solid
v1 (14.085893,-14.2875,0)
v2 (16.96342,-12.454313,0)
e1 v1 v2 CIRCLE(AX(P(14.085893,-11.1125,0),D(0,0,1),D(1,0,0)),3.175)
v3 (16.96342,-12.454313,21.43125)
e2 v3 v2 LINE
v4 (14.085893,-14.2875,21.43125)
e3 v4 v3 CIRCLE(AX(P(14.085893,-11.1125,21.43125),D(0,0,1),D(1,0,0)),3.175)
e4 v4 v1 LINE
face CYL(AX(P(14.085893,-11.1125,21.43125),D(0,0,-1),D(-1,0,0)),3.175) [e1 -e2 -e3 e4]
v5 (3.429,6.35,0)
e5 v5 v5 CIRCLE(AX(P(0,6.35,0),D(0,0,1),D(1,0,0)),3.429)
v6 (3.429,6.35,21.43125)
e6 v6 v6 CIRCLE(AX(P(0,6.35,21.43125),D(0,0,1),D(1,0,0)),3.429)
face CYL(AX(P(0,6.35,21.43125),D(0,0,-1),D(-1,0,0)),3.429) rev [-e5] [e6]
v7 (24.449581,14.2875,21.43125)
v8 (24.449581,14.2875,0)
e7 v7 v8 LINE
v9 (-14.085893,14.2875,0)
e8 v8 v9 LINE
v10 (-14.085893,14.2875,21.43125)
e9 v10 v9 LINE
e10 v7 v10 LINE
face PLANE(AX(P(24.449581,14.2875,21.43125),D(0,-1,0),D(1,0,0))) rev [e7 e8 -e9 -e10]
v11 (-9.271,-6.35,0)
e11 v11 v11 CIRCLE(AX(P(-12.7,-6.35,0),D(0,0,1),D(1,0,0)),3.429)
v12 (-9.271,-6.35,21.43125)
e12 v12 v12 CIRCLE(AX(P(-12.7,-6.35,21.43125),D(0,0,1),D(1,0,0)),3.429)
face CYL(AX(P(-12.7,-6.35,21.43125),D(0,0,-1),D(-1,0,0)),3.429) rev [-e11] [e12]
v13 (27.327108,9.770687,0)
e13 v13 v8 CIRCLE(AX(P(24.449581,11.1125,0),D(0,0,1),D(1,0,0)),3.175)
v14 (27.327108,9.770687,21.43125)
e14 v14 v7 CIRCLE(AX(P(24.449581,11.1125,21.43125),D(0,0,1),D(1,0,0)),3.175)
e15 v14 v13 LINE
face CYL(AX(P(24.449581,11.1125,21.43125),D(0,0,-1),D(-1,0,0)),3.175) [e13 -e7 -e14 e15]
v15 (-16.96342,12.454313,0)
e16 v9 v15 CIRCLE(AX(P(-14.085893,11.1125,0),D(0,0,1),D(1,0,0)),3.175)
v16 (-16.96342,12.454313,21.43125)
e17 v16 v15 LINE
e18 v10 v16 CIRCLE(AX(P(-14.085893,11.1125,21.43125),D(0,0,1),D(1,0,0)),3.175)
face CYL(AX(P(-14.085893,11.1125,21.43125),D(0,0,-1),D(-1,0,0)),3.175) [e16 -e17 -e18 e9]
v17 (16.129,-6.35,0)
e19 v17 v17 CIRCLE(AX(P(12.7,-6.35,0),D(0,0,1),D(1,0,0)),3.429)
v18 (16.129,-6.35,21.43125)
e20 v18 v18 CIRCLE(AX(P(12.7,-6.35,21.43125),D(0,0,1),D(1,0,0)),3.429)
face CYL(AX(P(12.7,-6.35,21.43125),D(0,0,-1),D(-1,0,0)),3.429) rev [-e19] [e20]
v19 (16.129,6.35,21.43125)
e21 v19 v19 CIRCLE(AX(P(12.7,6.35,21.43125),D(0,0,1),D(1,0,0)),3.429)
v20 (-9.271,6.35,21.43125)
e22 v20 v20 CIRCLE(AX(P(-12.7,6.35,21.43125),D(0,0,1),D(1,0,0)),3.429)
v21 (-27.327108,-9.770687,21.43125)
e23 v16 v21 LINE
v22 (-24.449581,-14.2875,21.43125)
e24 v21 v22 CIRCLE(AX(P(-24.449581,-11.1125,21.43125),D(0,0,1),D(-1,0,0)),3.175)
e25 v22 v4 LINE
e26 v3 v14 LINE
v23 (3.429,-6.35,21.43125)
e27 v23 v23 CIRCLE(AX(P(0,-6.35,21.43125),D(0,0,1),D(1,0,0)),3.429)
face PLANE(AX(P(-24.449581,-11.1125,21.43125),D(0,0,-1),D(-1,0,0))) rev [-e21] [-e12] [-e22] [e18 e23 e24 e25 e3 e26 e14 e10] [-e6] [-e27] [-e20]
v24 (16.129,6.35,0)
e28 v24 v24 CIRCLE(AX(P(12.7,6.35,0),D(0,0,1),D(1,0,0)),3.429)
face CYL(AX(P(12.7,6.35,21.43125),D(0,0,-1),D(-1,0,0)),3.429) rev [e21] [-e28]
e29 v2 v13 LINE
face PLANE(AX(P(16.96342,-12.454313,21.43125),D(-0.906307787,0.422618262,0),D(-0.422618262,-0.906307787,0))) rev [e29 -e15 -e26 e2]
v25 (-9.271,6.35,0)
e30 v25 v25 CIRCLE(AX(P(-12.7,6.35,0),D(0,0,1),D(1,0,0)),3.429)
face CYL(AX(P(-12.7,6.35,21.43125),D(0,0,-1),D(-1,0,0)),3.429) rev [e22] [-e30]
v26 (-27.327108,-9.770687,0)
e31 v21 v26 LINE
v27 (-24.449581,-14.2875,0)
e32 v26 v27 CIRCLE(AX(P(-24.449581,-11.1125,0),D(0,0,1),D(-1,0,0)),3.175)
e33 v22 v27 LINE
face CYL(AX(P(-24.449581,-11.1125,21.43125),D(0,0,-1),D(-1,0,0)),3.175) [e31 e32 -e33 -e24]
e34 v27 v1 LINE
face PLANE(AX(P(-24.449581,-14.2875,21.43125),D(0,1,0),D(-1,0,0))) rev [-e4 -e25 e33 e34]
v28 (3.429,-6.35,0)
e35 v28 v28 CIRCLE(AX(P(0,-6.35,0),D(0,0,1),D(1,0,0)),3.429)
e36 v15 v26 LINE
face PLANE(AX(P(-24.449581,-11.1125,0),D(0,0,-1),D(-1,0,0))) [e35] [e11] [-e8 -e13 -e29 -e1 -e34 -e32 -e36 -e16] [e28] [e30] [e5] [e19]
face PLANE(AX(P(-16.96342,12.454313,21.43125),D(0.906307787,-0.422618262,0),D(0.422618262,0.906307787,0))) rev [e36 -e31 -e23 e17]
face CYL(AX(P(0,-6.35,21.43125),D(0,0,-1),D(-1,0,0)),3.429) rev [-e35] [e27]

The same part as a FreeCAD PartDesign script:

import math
import FreeCAD as App
import Part
import Sketcher
Q = App.Units.Quantity

doc = App.newDocument("Part")
body = doc.addObject("PartDesign::Body", "Body")

# Sketch on XY plane
sketch1 = doc.addObject("Sketcher::SketchObject", "Sketch")
body.addObject(sketch1)
sketch1.AttachmentSupport = (doc.XY_Plane, [""])
sketch1.MapMode = "FlatFace"
sketch1.addGeometry(Part.LineSegment(App.Vector(-24.4, -14.3, 0), App.Vector(14.1, -14.3, 0)), False)
sketch1.addGeometry(Part.ArcOfCircle(Part.Circle(App.Vector(14.1, -11.1, 0), App.Vector(0, 0, 1), 3.2), math.radians(-90), math.radians(-25)), False)
sketch1.addGeometry(Part.LineSegment(App.Vector(17, -12.5, 0), App.Vector(27.3, 9.8, 0)), False)
sketch1.addGeometry(Part.ArcOfCircle(Part.Circle(App.Vector(24.4, 11.1, 0), App.Vector(0, 0, 1), 3.2), math.radians(-25), math.radians(90)), False)
sketch1.addGeometry(Part.LineSegment(App.Vector(24.4, 14.3, 0), App.Vector(-14.1, 14.3, 0)), False)
sketch1.addGeometry(Part.ArcOfCircle(Part.Circle(App.Vector(-14.1, 11.1, 0), App.Vector(0, 0, 1), 3.2), math.radians(90), math.radians(155)), False)
sketch1.addGeometry(Part.LineSegment(App.Vector(-17, 12.5, 0), App.Vector(-27.3, -9.8, 0)), False)
sketch1.addGeometry(Part.ArcOfCircle(Part.Circle(App.Vector(-24.4, -11.1, 0), App.Vector(0, 0, 1), 3.2), math.radians(155), math.radians(270)), False)
sketch1.addGeometry(Part.Circle(App.Vector(-12.7, -6.3, 0), App.Vector(0, 0, 1), 3.4), False)
sketch1.addGeometry(Part.Circle(App.Vector(0, -6.3, 0), App.Vector(0, 0, 1), 3.4), False)
sketch1.addGeometry(Part.Circle(App.Vector(12.7, -6.3, 0), App.Vector(0, 0, 1), 3.4), False)
sketch1.addGeometry(Part.Circle(App.Vector(-12.7, 6.3, 0), App.Vector(0, 0, 1), 3.4), False)
sketch1.addGeometry(Part.Circle(App.Vector(0, 6.3, 0), App.Vector(0, 0, 1), 3.4), False)
sketch1.addGeometry(Part.Circle(App.Vector(12.7, 6.3, 0), App.Vector(0, 0, 1), 3.4), False)
sketch1.addConstraint(Sketcher.Constraint("Tangent", 0, 2, 1, 1))
sketch1.addConstraint(Sketcher.Constraint("Tangent", 1, 2, 2, 1))
sketch1.addConstraint(Sketcher.Constraint("Tangent", 2, 2, 3, 1))
sketch1.addConstraint(Sketcher.Constraint("Tangent", 3, 2, 4, 1))
sketch1.addConstraint(Sketcher.Constraint("Tangent", 4, 2, 5, 1))
sketch1.addConstraint(Sketcher.Constraint("Tangent", 5, 2, 6, 1))
sketch1.addConstraint(Sketcher.Constraint("Tangent", 6, 2, 7, 1))
sketch1.addConstraint(Sketcher.Constraint("Tangent", 7, 2, 0, 1))
sketch1.addConstraint(Sketcher.Constraint("Horizontal", 0))
sketch1.addConstraint(Sketcher.Constraint("Horizontal", 4))
sketch1.addConstraint(Sketcher.Constraint("Equal", 1, 3))
sketch1.addConstraint(Sketcher.Constraint("Equal", 3, 5))
sketch1.addConstraint(Sketcher.Constraint("Equal", 5, 7))
sketch1.addConstraint(Sketcher.Constraint("Equal", 8, 9))
sketch1.addConstraint(Sketcher.Constraint("Equal", 9, 10))
sketch1.addConstraint(Sketcher.Constraint("Equal", 10, 11))
sketch1.addConstraint(Sketcher.Constraint("Equal", 11, 12))
sketch1.addConstraint(Sketcher.Constraint("Equal", 12, 13))
sketch1.addConstraint(Sketcher.Constraint("Symmetric", 1, 3, 5, 3, -1, 1))
sketch1.addConstraint(Sketcher.Constraint("Symmetric", 10, 3, 11, 3, -1, 1))
sketch1.addConstraint(Sketcher.Constraint("Symmetric", 9, 3, 12, 3, -1, 1))
sketch1.addConstraint(Sketcher.Constraint("Symmetric", 8, 3, 13, 3, -1, 1))
sketch1.addConstraint(Sketcher.Constraint("Symmetric", 8, 3, 10, 3, -2))
sketch1.addConstraint(Sketcher.Constraint("PointOnObject", 9, 3, -2))
sketch1.addConstraint(Sketcher.Constraint("Parallel", 2, 6))
sketch1.addConstraint(Sketcher.Constraint("Horizontal", 8, 3, 9, 3))
sketch1.addConstraint(Sketcher.Constraint("Diameter", 8, Q("0.27 in")))
sketch1.addConstraint(Sketcher.Constraint("Angle", 2, Q("65 deg")))
sketch1.addConstraint(Sketcher.Constraint("Radius", 1, Q("0.125 in")))
sketch1.addConstraint(Sketcher.Constraint("DistanceX", 8, 3, 10, 3, Q("1 in")))
sketch1.addConstraint(Sketcher.Constraint("DistanceY", 8, 3, 11, 3, Q("0.5 in")))
sketch1.addConstraint(Sketcher.Constraint("DistanceY", 1, 3, -1, 1, Q("0.4375 in")))
sketch1.addConstraint(Sketcher.Constraint("DistanceX", 0, 1, 0, 2, Q("38.535474 mm")))
pad1 = doc.addObject("PartDesign::Pad", "Pad")
body.addObject(pad1)
pad1.Profile = sketch1
pad1.Length = Q("0.84375 in")

doc.recompute()
